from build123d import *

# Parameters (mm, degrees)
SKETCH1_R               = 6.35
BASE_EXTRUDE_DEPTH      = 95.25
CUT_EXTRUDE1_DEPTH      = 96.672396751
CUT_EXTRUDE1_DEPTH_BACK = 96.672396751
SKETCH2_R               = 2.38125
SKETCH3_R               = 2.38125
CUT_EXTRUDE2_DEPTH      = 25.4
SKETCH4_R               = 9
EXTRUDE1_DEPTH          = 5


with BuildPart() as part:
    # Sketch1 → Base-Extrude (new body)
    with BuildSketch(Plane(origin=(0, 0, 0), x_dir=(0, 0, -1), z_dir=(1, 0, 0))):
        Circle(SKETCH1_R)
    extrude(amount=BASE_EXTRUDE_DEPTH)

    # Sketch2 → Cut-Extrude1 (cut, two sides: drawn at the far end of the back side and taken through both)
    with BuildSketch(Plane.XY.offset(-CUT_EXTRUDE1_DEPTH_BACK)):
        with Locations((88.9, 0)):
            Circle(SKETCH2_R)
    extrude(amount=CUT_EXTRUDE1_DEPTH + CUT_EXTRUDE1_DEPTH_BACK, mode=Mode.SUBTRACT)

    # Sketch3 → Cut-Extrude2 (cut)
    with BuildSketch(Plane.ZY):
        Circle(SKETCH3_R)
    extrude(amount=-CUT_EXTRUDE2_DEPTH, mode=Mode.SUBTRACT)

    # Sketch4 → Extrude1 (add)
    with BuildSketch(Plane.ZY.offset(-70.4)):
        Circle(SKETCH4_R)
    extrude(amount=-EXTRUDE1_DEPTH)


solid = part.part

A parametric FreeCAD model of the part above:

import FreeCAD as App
import Part
import Sketcher
from FreeCAD import Vector
Q = App.Units.Quantity

doc = App.newDocument("Part")
body = doc.addObject("PartDesign::Body", "Body")

sketch1 = doc.addObject("Sketcher::SketchObject", "Sketch")
body.addObject(sketch1)
sketch1.AttachmentSupport = (doc.YZ_Plane, [""])
sketch1.MapMode = "FlatFace"
sketch1.addGeometry(Part.Circle(Vector(0, 0, 0), Vector(0, 0, 1), 6), False)
sketch1.addConstraint([
    Sketcher.Constraint("Coincident", 0, 3, -1, 1),
    Sketcher.Constraint("Diameter", 0, Q("0.5 in")),
])
pad1 = doc.addObject("PartDesign::Pad", "Pad")
body.addObject(pad1)
pad1.Profile = sketch1
pad1.Length = Q("3.75 in")

sketch2 = doc.addObject("Sketcher::SketchObject", "Sketch001")
body.addObject(sketch2)
sketch2.AttachmentSupport = (doc.XY_Plane, [""])
sketch2.MapMode = "FlatFace"
sketch2.addGeometry(Part.Circle(Vector(88.9, 0, 0), Vector(0, 0, 1), 2.4), False)
sketch2.addConstraint([
    Sketcher.Constraint("PointOnObject", 0, 3, -1),
    Sketcher.Constraint("Diameter", 0, Q("0.1875 in")),
    Sketcher.Constraint("DistanceX", -1, 1, 0, 3, Q("3.5 in")),
])
pocket1 = doc.addObject("PartDesign::Pocket", "Pocket")
body.addObject(pocket1)
pocket1.Profile = sketch2
pocket1.Type = "ThroughAll"
pocket1.Midplane = True

sketch3 = doc.addObject("Sketcher::SketchObject", "Sketch002")
body.addObject(sketch3)
sketch3.AttachmentSupport = (doc.YZ_Plane, [""])
sketch3.MapMode = "FlatFace"
sketch3.addGeometry(Part.Circle(Vector(0, 0, 0), Vector(0, 0, 1), 2.4), False)
sketch3.addConstraint([
    Sketcher.Constraint("Coincident", 0, 3, -1, 1),
    Sketcher.Constraint("Diameter", 0, Q("0.1875 in")),
])
pocket2 = doc.addObject("PartDesign::Pocket", "Pocket001")
body.addObject(pocket2)
pocket2.Profile = sketch3
pocket2.Length = Q("1 in")
pocket2.Reversed = True

sketch4 = doc.addObject("Sketcher::SketchObject", "Sketch003")
body.addObject(sketch4)
sketch4.AttachmentSupport = (doc.YZ_Plane, [""])
sketch4.MapMode = "FlatFace"
sketch4.AttachmentOffset = App.Placement(Vector(0, 0, 70.4), App.Rotation())
sketch4.addGeometry(Part.Circle(Vector(0, 0, 0), Vector(0, 0, 1), 9), False)
sketch4.addConstraint([
    Sketcher.Constraint("Coincident", 0, 3, -1, 1),
    Sketcher.Constraint("Diameter", 0, Q("18 mm")),
])
pad2 = doc.addObject("PartDesign::Pad", "Pad001")
body.addObject(pad2)
pad2.Profile = sketch4
pad2.Length = 5

doc.recompute()
